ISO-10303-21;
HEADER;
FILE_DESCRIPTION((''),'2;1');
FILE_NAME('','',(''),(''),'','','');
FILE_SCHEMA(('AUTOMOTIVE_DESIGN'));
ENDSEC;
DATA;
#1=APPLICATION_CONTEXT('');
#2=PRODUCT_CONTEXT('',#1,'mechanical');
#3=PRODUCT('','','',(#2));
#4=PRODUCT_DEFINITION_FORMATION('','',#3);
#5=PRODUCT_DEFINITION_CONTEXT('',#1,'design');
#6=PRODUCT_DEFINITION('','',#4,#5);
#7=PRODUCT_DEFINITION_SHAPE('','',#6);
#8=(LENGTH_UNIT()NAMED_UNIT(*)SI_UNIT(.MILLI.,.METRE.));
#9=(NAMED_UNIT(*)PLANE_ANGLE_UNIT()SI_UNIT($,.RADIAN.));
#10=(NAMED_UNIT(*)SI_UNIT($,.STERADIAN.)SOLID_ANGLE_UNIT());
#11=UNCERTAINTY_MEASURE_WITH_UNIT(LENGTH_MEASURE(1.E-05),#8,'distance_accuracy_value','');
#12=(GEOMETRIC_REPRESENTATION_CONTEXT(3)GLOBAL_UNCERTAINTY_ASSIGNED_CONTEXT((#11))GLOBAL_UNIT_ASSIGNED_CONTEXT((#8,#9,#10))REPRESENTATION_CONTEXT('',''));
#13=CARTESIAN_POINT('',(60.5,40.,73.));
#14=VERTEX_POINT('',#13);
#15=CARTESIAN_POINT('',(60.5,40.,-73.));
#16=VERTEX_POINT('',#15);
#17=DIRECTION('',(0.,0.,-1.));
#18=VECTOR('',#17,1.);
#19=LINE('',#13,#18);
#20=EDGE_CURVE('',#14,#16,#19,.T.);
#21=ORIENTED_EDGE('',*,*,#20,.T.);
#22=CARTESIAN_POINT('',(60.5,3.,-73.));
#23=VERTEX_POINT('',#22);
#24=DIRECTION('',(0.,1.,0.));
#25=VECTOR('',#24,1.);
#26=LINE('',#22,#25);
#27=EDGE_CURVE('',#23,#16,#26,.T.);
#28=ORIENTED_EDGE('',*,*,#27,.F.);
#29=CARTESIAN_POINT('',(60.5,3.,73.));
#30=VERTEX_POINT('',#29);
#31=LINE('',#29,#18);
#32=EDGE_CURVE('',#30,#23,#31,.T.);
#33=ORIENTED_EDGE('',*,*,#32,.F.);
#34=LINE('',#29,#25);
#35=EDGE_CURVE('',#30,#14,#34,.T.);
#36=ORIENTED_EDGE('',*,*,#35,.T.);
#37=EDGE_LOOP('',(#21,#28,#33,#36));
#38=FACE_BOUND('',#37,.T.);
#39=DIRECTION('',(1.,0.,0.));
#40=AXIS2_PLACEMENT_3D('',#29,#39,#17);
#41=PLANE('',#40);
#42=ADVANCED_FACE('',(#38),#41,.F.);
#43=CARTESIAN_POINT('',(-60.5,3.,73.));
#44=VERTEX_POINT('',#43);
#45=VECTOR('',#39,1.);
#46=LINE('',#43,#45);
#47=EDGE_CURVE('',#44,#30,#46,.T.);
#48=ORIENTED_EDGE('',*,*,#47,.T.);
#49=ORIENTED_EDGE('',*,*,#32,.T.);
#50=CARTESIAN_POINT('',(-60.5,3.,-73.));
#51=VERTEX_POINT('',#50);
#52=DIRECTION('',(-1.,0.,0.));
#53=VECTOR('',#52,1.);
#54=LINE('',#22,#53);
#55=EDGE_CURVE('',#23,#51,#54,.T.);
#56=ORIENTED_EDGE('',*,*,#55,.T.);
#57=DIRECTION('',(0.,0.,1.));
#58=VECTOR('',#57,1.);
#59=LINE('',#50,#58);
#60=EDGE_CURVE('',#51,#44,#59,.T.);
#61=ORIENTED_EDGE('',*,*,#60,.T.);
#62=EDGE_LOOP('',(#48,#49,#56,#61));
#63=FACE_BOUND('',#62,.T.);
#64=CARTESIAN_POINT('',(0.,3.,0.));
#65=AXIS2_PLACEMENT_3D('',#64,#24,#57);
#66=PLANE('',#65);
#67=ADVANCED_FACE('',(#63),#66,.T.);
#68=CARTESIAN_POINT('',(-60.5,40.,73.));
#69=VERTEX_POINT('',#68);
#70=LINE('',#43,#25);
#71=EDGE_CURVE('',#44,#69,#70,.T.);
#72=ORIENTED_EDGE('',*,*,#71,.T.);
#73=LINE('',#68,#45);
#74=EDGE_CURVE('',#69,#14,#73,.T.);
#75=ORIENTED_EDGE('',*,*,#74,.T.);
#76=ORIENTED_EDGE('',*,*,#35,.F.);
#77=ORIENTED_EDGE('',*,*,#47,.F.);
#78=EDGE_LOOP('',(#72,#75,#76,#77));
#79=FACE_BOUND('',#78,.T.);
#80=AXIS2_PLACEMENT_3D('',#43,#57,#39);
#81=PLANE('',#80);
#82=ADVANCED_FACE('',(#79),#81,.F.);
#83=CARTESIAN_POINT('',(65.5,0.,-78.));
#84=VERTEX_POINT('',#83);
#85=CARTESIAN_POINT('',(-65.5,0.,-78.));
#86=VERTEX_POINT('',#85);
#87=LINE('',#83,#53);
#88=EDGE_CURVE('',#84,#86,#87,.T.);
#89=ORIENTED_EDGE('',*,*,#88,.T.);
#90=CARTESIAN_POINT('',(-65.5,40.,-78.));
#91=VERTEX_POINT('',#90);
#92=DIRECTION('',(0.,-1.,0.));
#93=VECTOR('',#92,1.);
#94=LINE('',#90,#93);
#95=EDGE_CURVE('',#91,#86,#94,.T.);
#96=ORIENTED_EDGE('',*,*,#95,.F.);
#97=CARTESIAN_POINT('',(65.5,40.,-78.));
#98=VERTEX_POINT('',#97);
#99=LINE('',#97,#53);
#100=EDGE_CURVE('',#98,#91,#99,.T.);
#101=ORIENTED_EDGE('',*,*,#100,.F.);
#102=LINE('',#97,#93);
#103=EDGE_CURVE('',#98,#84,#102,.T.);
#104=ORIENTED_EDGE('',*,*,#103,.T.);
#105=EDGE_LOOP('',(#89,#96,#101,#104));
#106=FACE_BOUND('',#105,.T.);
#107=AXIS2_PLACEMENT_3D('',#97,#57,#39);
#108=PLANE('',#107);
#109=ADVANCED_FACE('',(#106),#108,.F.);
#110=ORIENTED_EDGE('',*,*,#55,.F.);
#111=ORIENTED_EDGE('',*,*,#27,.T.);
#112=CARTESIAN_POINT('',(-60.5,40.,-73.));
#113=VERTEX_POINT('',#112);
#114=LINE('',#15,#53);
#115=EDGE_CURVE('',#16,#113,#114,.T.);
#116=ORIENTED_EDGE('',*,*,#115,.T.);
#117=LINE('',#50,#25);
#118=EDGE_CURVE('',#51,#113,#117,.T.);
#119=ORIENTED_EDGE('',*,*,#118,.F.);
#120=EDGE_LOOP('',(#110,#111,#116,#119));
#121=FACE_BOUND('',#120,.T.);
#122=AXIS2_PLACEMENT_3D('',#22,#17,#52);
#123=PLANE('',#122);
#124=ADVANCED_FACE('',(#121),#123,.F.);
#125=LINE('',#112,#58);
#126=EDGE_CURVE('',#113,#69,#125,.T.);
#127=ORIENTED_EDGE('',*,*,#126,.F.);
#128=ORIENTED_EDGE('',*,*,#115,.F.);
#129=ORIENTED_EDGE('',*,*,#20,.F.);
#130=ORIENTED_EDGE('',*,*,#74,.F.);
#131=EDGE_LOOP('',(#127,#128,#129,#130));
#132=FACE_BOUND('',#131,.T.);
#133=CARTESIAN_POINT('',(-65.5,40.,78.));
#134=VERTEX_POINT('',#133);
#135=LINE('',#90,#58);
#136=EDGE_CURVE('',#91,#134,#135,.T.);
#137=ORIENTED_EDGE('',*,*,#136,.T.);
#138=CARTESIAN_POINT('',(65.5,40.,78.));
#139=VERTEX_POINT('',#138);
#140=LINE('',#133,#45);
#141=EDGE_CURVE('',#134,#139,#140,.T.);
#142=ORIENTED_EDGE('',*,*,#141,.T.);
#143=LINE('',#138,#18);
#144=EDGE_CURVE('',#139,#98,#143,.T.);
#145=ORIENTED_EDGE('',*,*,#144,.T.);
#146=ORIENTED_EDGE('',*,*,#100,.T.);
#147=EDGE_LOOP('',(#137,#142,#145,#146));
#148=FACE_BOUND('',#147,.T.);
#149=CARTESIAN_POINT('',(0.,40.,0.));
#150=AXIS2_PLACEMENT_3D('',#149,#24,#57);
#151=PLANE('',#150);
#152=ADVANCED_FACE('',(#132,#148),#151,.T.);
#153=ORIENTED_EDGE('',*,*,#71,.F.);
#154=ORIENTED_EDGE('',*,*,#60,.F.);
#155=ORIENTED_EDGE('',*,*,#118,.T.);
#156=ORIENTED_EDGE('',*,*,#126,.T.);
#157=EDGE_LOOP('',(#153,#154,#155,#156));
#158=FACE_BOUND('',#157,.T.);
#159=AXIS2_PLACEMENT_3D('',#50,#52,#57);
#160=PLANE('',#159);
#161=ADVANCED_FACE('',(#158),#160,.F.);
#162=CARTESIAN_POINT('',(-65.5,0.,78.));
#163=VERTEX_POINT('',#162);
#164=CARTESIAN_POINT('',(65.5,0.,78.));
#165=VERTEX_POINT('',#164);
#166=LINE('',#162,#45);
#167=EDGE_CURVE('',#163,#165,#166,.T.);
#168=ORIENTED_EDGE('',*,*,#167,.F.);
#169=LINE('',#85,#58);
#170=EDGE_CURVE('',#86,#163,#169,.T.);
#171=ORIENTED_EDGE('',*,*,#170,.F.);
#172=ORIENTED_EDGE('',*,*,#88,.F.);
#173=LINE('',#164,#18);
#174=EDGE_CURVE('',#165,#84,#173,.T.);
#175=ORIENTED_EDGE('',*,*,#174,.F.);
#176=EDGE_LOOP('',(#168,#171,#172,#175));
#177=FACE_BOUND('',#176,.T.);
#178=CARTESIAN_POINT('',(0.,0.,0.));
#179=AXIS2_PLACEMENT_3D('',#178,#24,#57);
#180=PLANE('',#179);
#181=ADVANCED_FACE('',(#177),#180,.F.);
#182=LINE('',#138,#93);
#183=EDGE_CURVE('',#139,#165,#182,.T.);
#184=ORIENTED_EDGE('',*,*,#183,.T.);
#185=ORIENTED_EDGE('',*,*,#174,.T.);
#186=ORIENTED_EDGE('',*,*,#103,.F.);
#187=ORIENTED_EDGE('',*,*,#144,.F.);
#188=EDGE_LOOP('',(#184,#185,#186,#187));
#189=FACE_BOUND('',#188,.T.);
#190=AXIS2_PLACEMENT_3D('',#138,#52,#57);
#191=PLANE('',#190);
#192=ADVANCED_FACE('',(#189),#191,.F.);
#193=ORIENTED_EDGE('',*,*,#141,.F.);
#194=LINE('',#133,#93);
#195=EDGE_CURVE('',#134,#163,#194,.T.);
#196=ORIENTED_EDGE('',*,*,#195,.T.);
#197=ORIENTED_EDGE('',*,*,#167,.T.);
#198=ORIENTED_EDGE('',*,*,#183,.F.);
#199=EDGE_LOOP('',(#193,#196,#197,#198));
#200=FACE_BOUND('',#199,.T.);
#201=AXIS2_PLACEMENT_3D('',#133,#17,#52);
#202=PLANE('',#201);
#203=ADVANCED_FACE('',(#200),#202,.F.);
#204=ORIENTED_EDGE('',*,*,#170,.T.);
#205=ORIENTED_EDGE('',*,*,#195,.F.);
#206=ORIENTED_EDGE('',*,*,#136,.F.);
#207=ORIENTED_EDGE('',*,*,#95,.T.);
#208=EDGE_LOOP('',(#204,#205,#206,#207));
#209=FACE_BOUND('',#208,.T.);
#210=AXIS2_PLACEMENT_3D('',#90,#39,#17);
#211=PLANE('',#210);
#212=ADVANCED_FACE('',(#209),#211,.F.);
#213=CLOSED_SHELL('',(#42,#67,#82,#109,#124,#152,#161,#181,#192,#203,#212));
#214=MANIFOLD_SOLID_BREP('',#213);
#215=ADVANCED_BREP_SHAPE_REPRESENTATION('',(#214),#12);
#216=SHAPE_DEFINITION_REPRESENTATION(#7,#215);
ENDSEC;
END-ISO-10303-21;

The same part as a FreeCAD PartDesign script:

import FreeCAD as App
import Part
import Sketcher
from FreeCAD import Vector

doc = App.newDocument("Part")
params = doc.addObject("Spreadsheet::Sheet", "Params")
for row, (alias, value) in enumerate([
    ("sketch1_width", "131 mm"),
    ("sketch1_height", "156 mm"),
    ("pad1_length", "40 mm"),
    ("sketch2_width", "121 mm"),
    ("sketch2_height", "146 mm"),
    ("pocket1_length", "37 mm"),
], start=1):
    params.set(f"A{row}", alias)
    params.set(f"B{row}", "=" + value)
    params.setAlias(f"B{row}", alias)

body = doc.addObject("PartDesign::Body", "Body")

# Sketch on XZ plane
sketch1 = body.newObject("Sketcher::SketchObject", "Sketch")
sketch1.AttachmentSupport = (doc.getObject("XZ_Plane"), [""])
sketch1.MapMode = "FlatFace"
sketch1.addGeometry([
    Part.LineSegment(Vector(66, 78, 0), Vector(66, -78, 0)),
    Part.LineSegment(Vector(66, -78, 0), Vector(-66, -78, 0)),
    Part.LineSegment(Vector(-66, -78, 0), Vector(-66, 78, 0)),
    Part.LineSegment(Vector(-66, 78, 0), Vector(66, 78, 0)),
], False)
sketch1.addConstraint([
    Sketcher.Constraint("Coincident", 0, 2, 1, 1),
    Sketcher.Constraint("Coincident", 1, 2, 2, 1),
    Sketcher.Constraint("Coincident", 2, 2, 3, 1),
    Sketcher.Constraint("Coincident", 3, 2, 0, 1),
    Sketcher.Constraint("Vertical", 0),
    Sketcher.Constraint("Horizontal", 1),
    Sketcher.Constraint("Vertical", 2),
    Sketcher.Constraint("Horizontal", 3),
    Sketcher.Constraint("Symmetric", 0, 2, 2, 2, -1, 1),
    Sketcher.Constraint("DistanceX", 1, 2, 1, 1, 131.0),
    Sketcher.Constraint("DistanceY", 0, 2, 0, 1, 156.0),
])
sketch1.setExpression("Constraints[9]", "Params.sketch1_width")
sketch1.setExpression("Constraints[10]", "Params.sketch1_height")
pad1 = body.newObject("PartDesign::Pad", "Pad")
pad1.Profile = sketch1
pad1.setExpression("Length", "Params.pad1_length")
pad1.Reversed = True

# Sketch on XZ plane
sketch2 = body.newObject("Sketcher::SketchObject", "Sketch001")
sketch2.AttachmentSupport = (doc.getObject("XZ_Plane"), [""])
sketch2.MapMode = "FlatFace"
sketch2.AttachmentOffset = App.Placement(Vector(0, 0, -40), App.Rotation())
sketch2.addGeometry([
    Part.LineSegment(Vector(-60, -73, 0), Vector(-60, 73, 0)),
    Part.LineSegment(Vector(-60, 73, 0), Vector(60, 73, 0)),
    Part.LineSegment(Vector(60, 73, 0), Vector(60, -73, 0)),
    Part.LineSegment(Vector(60, -73, 0), Vector(-60, -73, 0)),
], False)
sketch2.addConstraint([
    Sketcher.Constraint("Coincident", 0, 2, 1, 1),
    Sketcher.Constraint("Coincident", 1, 2, 2, 1),
    Sketcher.Constraint("Coincident", 2, 2, 3, 1),
    Sketcher.Constraint("Coincident", 3, 2, 0, 1),
    Sketcher.Constraint("Vertical", 0),
    Sketcher.Constraint("Horizontal", 1),
    Sketcher.Constraint("Vertical", 2),
    Sketcher.Constraint("Horizontal", 3),
    Sketcher.Constraint("Symmetric", 0, 2, 2, 2, -1, 1),
    Sketcher.Constraint("DistanceX", 1, 1, 1, 2, 121.0),
    Sketcher.Constraint("DistanceY", 0, 1, 0, 2, 146.0),
])
sketch2.setExpression("Constraints[9]", "Params.sketch2_width")
sketch2.setExpression("Constraints[10]", "Params.sketch2_height")
pocket1 = body.newObject("PartDesign::Pocket", "Pocket")
pocket1.Profile = sketch2
pocket1.setExpression("Length", "Params.pocket1_length")
pocket1.Reversed = True

doc.recompute()
